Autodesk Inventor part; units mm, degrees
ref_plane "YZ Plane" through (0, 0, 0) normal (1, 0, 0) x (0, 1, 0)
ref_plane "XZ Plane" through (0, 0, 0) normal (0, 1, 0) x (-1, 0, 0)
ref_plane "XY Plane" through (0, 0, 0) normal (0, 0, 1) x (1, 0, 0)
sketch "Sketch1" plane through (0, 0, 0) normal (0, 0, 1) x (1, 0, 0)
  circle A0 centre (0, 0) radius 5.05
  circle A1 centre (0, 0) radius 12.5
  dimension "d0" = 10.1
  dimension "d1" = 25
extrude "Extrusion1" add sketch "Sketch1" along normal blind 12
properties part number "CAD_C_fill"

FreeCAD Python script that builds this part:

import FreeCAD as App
import Part
import Sketcher

V = App.Vector

doc = App.newDocument("Part")
body = doc.addObject("PartDesign::Body", "Body")

sketch1 = body.newObject("Sketcher::SketchObject", "Sketch")
sketch1.AttachmentSupport = (doc.getObject("XY_Plane"), [""])
sketch1.MapMode = "FlatFace"
sketch1.addGeometry([
    Part.Circle(V(0, 0, 0), V(0, 0, 1), 12),
    Part.Circle(V(0, 0, 0), V(0, 0, 1), 5),
], False)
sketch1.addConstraint([
    Sketcher.Constraint("Coincident", 0, 3, -1, 1),
    Sketcher.Constraint("Coincident", 1, 3, -1, 1),
    Sketcher.Constraint("Diameter", 0, 25.0),
    Sketcher.Constraint("Diameter", 1, 10.1),
])
pad1 = body.newObject("PartDesign::Pad", "Pad")
pad1.Profile = sketch1
pad1.Length = 12

doc.recompute()
